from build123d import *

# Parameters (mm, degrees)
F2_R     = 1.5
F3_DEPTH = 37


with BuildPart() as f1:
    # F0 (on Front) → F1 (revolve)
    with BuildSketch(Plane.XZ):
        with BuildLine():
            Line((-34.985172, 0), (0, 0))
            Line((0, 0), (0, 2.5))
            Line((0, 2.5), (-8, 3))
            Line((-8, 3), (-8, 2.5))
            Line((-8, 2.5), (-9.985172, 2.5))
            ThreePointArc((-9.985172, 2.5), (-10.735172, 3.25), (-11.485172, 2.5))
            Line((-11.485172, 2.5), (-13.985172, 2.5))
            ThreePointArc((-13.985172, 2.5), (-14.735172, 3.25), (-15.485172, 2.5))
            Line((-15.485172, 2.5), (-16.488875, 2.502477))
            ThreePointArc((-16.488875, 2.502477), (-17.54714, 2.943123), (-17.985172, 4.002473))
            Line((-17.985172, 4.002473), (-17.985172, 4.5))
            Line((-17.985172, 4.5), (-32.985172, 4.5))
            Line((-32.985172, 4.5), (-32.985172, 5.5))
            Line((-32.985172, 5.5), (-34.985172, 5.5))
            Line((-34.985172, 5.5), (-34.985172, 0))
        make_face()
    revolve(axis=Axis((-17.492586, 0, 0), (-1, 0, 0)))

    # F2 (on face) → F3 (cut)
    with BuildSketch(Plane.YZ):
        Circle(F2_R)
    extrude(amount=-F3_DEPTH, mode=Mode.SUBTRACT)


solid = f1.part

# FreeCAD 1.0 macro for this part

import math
import FreeCAD as App
import Part
import Sketcher

V = App.Vector

doc = App.newDocument("Part")
params = doc.addObject("Spreadsheet::Sheet", "Params")
for row, (alias, value) in enumerate([
    ("sketch1_width", "15 mm"),
    ("sketch1_width2", "2 mm"),
    ("sketch1_height", "1 mm"),
    ("sketch1_radius", "0.75 mm"),
    ("sketch1_width3", "2.5 mm"),
    ("revolution_angle", "360 deg"),
    ("sketch2_diameter", "3 mm"),
    ("pocket1_length", "37 mm"),
], start=1):
    params.set(f"A{row}", alias)
    params.set(f"B{row}", "=" + value)
    params.setAlias(f"B{row}", alias)

body = doc.addObject("PartDesign::Body", "Body")

sketch1 = doc.addObject("Sketcher::SketchObject", "Sketch")
body.addObject(sketch1)
sketch1.AttachmentSupport = (doc.XZ_Plane, [""])
sketch1.MapMode = "FlatFace"
sketch1.addGeometry([
    Part.LineSegment(V(-34.99, 0, 0), V(0, 0, 0)),
    Part.LineSegment(V(0, 0, 0), V(0, 2.5, 0)),
    Part.LineSegment(V(0, 2.5, 0), V(-8, 3, 0)),
    Part.LineSegment(V(-8, 3, 0), V(-8, 2.5, 0)),
    Part.LineSegment(V(-8, 2.5, 0), V(-9.99, 2.5, 0)),
    Part.ArcOfCircle(Part.Circle(V(-10.74, 2.5, 0), V(0, 0, 1), 0.75), math.radians(0), math.radians(180)),
    Part.LineSegment(V(-11.49, 2.5, 0), V(-13.99, 2.5, 0)),
    Part.ArcOfCircle(Part.Circle(V(-14.74, 2.5, 0), V(0, 0, 1), 0.75), math.radians(0), math.radians(180)),
    Part.LineSegment(V(-15.49, 2.5, 0), V(-16.49, 2.5, 0)),
    Part.ArcOfCircle(Part.Circle(V(-16.49, 4, 0), V(0, 0, 1), 1.5), math.radians(-180), math.radians(-90)),
    Part.LineSegment(V(-17.99, 4, 0), V(-17.99, 4.5, 0)),
    Part.LineSegment(V(-17.99, 4.5, 0), V(-32.99, 4.5, 0)),
    Part.LineSegment(V(-32.99, 4.5, 0), V(-32.99, 5.5, 0)),
    Part.LineSegment(V(-32.99, 5.5, 0), V(-34.99, 5.5, 0)),
    Part.LineSegment(V(-34.99, 5.5, 0), V(-34.99, 0, 0)),
], False)
sketch1.addConstraint([
    Sketcher.Constraint("Coincident", 0, 2, 1, 1),
    Sketcher.Constraint("Coincident", 1, 2, 2, 1),
    Sketcher.Constraint("Coincident", 2, 2, 3, 1),
    Sketcher.Constraint("Coincident", 3, 2, 4, 1),
    Sketcher.Constraint("Coincident", 4, 2, 5, 1),
    Sketcher.Constraint("Coincident", 5, 2, 6, 1),
    Sketcher.Constraint("Coincident", 6, 2, 7, 1),
    Sketcher.Constraint("Coincident", 7, 2, 8, 1),
    Sketcher.Constraint("Coincident", 8, 2, 9, 2),
    Sketcher.Constraint("Tangent", 9, 1, 10, 1),
    Sketcher.Constraint("Coincident", 10, 2, 11, 1),
    Sketcher.Constraint("Coincident", 11, 2, 12, 1),
    Sketcher.Constraint("Coincident", 12, 2, 13, 1),
    Sketcher.Constraint("Coincident", 13, 2, 14, 1),
    Sketcher.Constraint("Coincident", 14, 2, 0, 1),
    Sketcher.Constraint("Horizontal", 0),
    Sketcher.Constraint("Vertical", 1),
    Sketcher.Constraint("Vertical", 3),
    Sketcher.Constraint("Horizontal", 4),
    Sketcher.Constraint("Horizontal", 6),
    Sketcher.Constraint("Vertical", 10),
    Sketcher.Constraint("Horizontal", 11),
    Sketcher.Constraint("Vertical", 12),
    Sketcher.Constraint("Horizontal", 13),
    Sketcher.Constraint("Vertical", 14),
    Sketcher.Constraint("Coincident", 0, 2, -1, 1),
    Sketcher.Constraint("Equal", 5, 7),
    Sketcher.Constraint("Horizontal", 5, 3, 7, 3),
    Sketcher.Constraint("Horizontal", 7, 3, 1, 2),
    Sketcher.Constraint("Horizontal", 1, 2, 3, 2),
    Sketcher.Constraint("Horizontal", 4, 2, 5, 2),
    Sketcher.Constraint("Horizontal", 6, 2, 7, 2),
    Sketcher.Constraint("Equal", 6, 1),
    Sketcher.Constraint("DistanceX", 11, 2, 11, 1, 15.0),
    Sketcher.Constraint("DistanceX", 13, 2, 13, 1, 2.0),
    Sketcher.Constraint("DistanceY", 12, 1, 12, 2, 1.0),
    Sketcher.Constraint("Radius", 5, 0.75),
    Sketcher.Constraint("DistanceX", 6, 2, 6, 1, 2.5),
    Sketcher.Constraint("DistanceY", 3, 2, 3, 1, 0.5),
    Sketcher.Constraint("DistanceY", 14, 2, 14, 1, 5.5),
    Sketcher.Constraint("DistanceX", 2, 2, -1, 1, 8.0),
    Sketcher.Constraint("DistanceX", 9, 1, 6, 2, 4.0),
    Sketcher.Constraint("Radius", 9, 1.500002),
    Sketcher.Constraint("DistanceX", 0, 1, 0, 2, 34.985172),
    Sketcher.Constraint("DistanceY", 10, 1, 10, 2, 0.497527),
    Sketcher.Constraint("Distance", 8, 1.003706),
])
sketch1.setExpression("Constraints[33]", "Params.sketch1_width")
sketch1.setExpression("Constraints[34]", "Params.sketch1_width2")
sketch1.setExpression("Constraints[35]", "Params.sketch1_height")
sketch1.setExpression("Constraints[36]", "Params.sketch1_radius")
sketch1.setExpression("Constraints[37]", "Params.sketch1_width3")
revolution = doc.addObject("PartDesign::Revolution", "Revolution")
body.addObject(revolution)
revolution.Profile = sketch1
revolution.ReferenceAxis = (sketch1, ["H_Axis"])
revolution.setExpression("Angle", "Params.revolution_angle")

sketch2 = doc.addObject("Sketcher::SketchObject", "Sketch001")
body.addObject(sketch2)
sketch2.AttachmentSupport = (doc.YZ_Plane, [""])
sketch2.MapMode = "FlatFace"
sketch2.addGeometry(Part.Circle(V(0, 0, 0), V(0, 0, 1), 1.5), False)
sketch2.addConstraint([
    Sketcher.Constraint("Coincident", 0, 3, -1, 1),
    Sketcher.Constraint("Diameter", 0, 3.0),
])
sketch2.setExpression("Constraints[1]", "Params.sketch2_diameter")
pocket1 = doc.addObject("PartDesign::Pocket", "Pocket")
body.addObject(pocket1)
pocket1.Profile = sketch2
pocket1.setExpression("Length", "Params.pocket1_length")

doc.recompute()
